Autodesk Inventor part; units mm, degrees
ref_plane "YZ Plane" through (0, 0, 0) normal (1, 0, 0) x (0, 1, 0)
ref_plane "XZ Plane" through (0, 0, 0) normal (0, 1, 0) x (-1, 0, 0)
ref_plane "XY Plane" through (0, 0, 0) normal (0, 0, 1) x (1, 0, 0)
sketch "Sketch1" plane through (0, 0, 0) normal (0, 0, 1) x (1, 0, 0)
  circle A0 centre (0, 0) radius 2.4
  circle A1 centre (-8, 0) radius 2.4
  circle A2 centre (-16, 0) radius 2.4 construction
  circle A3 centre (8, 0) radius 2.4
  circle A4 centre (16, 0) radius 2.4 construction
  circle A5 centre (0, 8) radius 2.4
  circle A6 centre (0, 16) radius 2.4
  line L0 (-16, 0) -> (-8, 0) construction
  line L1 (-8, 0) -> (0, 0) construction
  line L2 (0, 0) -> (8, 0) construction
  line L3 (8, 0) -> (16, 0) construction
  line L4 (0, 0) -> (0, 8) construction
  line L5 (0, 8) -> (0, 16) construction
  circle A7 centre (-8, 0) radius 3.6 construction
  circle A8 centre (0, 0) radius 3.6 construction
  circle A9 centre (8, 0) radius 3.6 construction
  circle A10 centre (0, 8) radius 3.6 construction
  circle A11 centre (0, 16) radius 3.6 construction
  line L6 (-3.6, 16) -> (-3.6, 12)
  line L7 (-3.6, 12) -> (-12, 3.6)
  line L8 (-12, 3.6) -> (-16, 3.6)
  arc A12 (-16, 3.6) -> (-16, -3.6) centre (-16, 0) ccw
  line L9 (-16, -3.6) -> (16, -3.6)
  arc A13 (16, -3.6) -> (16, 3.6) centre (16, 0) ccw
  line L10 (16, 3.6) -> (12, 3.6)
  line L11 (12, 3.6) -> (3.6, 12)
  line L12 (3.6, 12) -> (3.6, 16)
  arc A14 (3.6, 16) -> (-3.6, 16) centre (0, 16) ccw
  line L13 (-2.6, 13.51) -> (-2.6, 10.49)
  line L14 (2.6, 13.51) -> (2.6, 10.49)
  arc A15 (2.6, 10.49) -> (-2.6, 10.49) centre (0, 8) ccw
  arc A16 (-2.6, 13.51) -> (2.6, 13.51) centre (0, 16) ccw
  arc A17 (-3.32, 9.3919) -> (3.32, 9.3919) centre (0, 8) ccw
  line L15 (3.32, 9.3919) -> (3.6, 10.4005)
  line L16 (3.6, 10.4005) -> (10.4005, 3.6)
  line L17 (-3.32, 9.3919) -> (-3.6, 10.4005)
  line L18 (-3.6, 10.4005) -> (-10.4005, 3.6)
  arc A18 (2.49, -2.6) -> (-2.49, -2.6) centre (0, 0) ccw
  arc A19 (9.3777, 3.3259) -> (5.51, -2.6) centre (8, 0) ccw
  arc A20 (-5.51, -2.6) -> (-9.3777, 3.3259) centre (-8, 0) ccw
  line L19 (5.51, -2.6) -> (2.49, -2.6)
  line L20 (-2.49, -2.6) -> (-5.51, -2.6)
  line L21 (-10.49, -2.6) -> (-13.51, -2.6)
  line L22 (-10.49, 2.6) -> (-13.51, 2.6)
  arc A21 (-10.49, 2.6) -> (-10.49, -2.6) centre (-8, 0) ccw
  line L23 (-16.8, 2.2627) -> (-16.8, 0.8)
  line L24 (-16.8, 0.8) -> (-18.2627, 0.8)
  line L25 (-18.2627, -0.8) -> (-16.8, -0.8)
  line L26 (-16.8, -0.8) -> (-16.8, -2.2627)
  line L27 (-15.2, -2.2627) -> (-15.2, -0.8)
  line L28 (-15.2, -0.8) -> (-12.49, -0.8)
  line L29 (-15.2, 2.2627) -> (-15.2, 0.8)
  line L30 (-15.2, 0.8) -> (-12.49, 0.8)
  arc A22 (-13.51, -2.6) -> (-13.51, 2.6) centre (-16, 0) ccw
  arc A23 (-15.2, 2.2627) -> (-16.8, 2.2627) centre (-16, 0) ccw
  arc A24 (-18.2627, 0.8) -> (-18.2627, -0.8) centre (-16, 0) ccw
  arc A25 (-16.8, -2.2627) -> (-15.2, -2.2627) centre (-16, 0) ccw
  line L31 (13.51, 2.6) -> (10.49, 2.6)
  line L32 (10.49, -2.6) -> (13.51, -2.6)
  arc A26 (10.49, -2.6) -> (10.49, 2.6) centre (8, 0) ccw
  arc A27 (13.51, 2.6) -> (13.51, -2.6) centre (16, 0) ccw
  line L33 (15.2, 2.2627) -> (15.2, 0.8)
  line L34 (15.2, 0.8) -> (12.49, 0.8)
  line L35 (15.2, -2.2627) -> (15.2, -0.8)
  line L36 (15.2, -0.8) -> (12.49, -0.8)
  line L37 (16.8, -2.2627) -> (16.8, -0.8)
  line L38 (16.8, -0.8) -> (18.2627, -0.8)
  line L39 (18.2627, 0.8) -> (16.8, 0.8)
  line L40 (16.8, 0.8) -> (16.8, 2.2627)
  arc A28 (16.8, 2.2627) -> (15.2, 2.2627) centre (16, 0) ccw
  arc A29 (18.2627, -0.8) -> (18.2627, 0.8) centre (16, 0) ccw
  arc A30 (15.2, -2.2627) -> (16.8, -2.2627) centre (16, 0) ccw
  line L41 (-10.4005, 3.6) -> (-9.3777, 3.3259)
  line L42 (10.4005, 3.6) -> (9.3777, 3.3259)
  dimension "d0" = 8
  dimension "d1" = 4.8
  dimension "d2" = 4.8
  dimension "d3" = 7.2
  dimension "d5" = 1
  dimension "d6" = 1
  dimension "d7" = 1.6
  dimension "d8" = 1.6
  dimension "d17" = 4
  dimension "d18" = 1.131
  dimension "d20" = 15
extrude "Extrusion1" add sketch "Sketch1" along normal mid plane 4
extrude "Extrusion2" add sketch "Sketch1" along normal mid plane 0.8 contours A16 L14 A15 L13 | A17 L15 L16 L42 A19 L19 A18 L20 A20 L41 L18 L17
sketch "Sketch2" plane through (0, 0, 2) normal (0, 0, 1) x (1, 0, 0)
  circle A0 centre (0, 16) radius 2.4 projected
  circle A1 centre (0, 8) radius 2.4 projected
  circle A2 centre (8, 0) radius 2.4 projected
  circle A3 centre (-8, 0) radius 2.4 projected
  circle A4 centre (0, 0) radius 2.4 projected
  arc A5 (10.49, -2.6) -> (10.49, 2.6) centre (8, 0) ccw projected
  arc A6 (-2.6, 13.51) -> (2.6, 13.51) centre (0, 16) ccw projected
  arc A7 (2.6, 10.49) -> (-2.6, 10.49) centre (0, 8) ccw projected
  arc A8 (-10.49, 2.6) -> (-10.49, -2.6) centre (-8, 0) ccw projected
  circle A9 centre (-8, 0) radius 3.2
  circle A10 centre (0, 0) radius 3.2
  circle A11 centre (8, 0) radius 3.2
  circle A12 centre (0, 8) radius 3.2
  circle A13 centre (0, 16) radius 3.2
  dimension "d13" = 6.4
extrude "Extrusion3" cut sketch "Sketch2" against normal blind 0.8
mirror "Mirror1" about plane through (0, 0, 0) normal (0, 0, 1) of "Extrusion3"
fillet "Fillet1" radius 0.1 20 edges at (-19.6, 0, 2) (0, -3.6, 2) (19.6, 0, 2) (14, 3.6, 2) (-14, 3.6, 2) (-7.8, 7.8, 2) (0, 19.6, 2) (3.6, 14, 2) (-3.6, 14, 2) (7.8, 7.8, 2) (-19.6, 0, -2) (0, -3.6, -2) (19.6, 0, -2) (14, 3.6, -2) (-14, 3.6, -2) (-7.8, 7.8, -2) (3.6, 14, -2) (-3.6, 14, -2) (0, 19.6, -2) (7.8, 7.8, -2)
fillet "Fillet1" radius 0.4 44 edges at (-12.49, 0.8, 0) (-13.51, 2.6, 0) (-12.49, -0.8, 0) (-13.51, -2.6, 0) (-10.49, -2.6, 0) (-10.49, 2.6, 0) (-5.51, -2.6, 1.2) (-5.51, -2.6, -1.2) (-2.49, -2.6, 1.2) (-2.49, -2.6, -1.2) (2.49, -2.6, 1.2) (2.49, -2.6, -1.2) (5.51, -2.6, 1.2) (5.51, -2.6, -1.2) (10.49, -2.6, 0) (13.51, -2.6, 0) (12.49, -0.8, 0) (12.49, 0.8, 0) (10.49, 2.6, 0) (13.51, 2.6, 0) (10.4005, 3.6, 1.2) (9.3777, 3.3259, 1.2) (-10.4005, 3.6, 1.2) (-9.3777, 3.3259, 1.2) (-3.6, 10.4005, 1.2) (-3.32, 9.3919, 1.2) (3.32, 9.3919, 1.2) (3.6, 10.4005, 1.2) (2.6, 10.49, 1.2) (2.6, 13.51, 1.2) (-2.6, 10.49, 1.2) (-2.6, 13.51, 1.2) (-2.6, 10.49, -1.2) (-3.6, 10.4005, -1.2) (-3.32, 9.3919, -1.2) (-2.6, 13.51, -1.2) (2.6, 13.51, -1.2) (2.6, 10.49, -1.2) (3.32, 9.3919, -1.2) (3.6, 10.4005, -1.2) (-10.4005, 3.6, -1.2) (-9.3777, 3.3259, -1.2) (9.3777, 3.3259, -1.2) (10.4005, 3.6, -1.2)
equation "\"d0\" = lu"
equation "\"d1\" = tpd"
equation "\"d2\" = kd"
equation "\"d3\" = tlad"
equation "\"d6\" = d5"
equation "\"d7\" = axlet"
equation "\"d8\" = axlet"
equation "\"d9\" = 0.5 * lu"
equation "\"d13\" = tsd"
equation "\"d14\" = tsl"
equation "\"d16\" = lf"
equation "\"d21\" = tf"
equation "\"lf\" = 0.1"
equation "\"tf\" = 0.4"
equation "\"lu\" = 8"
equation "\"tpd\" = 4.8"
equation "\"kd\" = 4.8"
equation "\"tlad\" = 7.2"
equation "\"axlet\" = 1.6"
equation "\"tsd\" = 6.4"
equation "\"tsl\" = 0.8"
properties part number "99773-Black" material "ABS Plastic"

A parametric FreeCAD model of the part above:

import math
import FreeCAD as App
import Part
import Sketcher
from FreeCAD import Vector
Q = App.Units.Quantity


def edges_at(feature, points):
    """Names of the edges that pass closest to the given points."""
    edges = feature.Shape.Edges
    near = lambda p: min(range(len(edges)), key=lambda i: edges[i].distToShape(Part.Vertex(*p))[0])
    return sorted({f"Edge{near(p) + 1}" for p in points})

doc = App.newDocument("Part")
body = doc.addObject("PartDesign::Body", "Body")

# Sketch on XY plane
sketch1 = doc.addObject("Sketcher::SketchObject", "Sketch")
body.addObject(sketch1)
sketch1.AttachmentSupport = (doc.XY_Plane, [""])
sketch1.MapMode = "FlatFace"
sketch1.addGeometry([
    Part.ArcOfCircle(Part.Circle(Vector(0, 16, 0), Vector(0, 0, 1), 3.6), math.radians(0), math.radians(180)),  # 0
    Part.LineSegment(Vector(-3.6, 16, 0), Vector(-3.6, 12, 0)),  # 1
    Part.LineSegment(Vector(-3.6, 12, 0), Vector(-12, 3.6, 0)),  # 2
    Part.LineSegment(Vector(-12, 3.6, 0), Vector(-16, 3.6, 0)),  # 3
    Part.ArcOfCircle(Part.Circle(Vector(-16, 0, 0), Vector(0, 0, 1), 3.6), math.radians(90), math.radians(270)),  # 4
    Part.LineSegment(Vector(-16, -3.6, 0), Vector(16, -3.6, 0)),  # 5
    Part.ArcOfCircle(Part.Circle(Vector(16, 0, 0), Vector(0, 0, 1), 3.6), math.radians(-90), math.radians(90)),  # 6
    Part.LineSegment(Vector(16, 3.6, 0), Vector(12, 3.6, 0)),  # 7
    Part.LineSegment(Vector(12, 3.6, 0), Vector(3.6, 12, 0)),  # 8
    Part.LineSegment(Vector(3.6, 12, 0), Vector(3.6, 16, 0)),  # 9
    Part.ArcOfCircle(Part.Circle(Vector(-8, 0, 0), Vector(0, 0, 1), 3.600014), math.radians(133.761974), math.radians(226.238026)),  # 10
    Part.LineSegment(Vector(-10.49, -2.6, 0), Vector(-13.51, -2.6, 0)),  # 11
    Part.ArcOfCircle(Part.Circle(Vector(-16, 0, 0), Vector(0, 0, 1), 3.600014), math.radians(-46.238026), math.radians(-12.839538)),  # 12
    Part.LineSegment(Vector(-12.49, -0.8, 0), Vector(-15.2, -0.8, 0)),  # 13
    Part.LineSegment(Vector(-15.2, -0.8, 0), Vector(-15.2, -2.2627, 0)),  # 14
    Part.ArcOfCircle(Part.Circle(Vector(-16, 0, 0), Vector(0, 0, 1), 2.399961), math.radians(-109.471552), math.radians(-70.528448)),  # 15
    Part.LineSegment(Vector(-16.8, -2.2627, 0), Vector(-16.8, -0.8, 0)),  # 16
    Part.LineSegment(Vector(-16.8, -0.8, 0), Vector(-18.2627, -0.8, 0)),  # 17
    Part.ArcOfCircle(Part.Circle(Vector(-16, 0, 0), Vector(0, 0, 1), 2.399961), math.radians(160.528448), math.radians(199.471552)),  # 18
    Part.LineSegment(Vector(-18.2627, 0.8, 0), Vector(-16.8, 0.8, 0)),  # 19
    Part.LineSegment(Vector(-16.8, 0.8, 0), Vector(-16.8, 2.2627, 0)),  # 20
    Part.ArcOfCircle(Part.Circle(Vector(-16, 0, 0), Vector(0, 0, 1), 2.399961), math.radians(70.528448), math.radians(109.471552)),  # 21
    Part.LineSegment(Vector(-15.2, 2.2627, 0), Vector(-15.2, 0.8, 0)),  # 22
    Part.LineSegment(Vector(-15.2, 0.8, 0), Vector(-12.49, 0.8, 0)),  # 23
    Part.ArcOfCircle(Part.Circle(Vector(-16, 0, 0), Vector(0, 0, 1), 3.600014), math.radians(12.839538), math.radians(46.238026)),  # 24
    Part.LineSegment(Vector(-13.51, 2.6, 0), Vector(-10.49, 2.6, 0)),  # 25
    Part.Circle(Vector(-8, 0, 0), Vector(0, 0, 1), 2.4),  # 26
    Part.Circle(Vector(0, 0, 0), Vector(0, 0, 1), 2.4),  # 27
    Part.Circle(Vector(8, 0, 0), Vector(0, 0, 1), 2.4),  # 28
    Part.LineSegment(Vector(10.49, 2.6, 0), Vector(13.51, 2.6, 0)),  # 29
    Part.ArcOfCircle(Part.Circle(Vector(16, 0, 0), Vector(0, 0, 1), 3.600014), math.radians(133.761974), math.radians(167.160462)),  # 30
    Part.LineSegment(Vector(12.49, 0.8, 0), Vector(15.2, 0.8, 0)),  # 31
    Part.LineSegment(Vector(15.2, 0.8, 0), Vector(15.2, 2.2627, 0)),  # 32
    Part.ArcOfCircle(Part.Circle(Vector(16, 0, 0), Vector(0, 0, 1), 2.399961), math.radians(70.528448), math.radians(109.471552)),  # 33
    Part.LineSegment(Vector(16.8, 2.2627, 0), Vector(16.8, 0.8, 0)),  # 34
    Part.LineSegment(Vector(16.8, 0.8, 0), Vector(18.2627, 0.8, 0)),  # 35
    Part.ArcOfCircle(Part.Circle(Vector(16, 0, 0), Vector(0, 0, 1), 2.399961), math.radians(-19.471552), math.radians(19.471552)),  # 36
    Part.LineSegment(Vector(18.2627, -0.8, 0), Vector(16.8, -0.8, 0)),  # 37
    Part.LineSegment(Vector(16.8, -0.8, 0), Vector(16.8, -2.2627, 0)),  # 38
    Part.ArcOfCircle(Part.Circle(Vector(16, 0, 0), Vector(0, 0, 1), 2.399961), math.radians(-109.471552), math.radians(-70.528448)),  # 39
    Part.LineSegment(Vector(15.2, -2.2627, 0), Vector(15.2, -0.8, 0)),  # 40
    Part.LineSegment(Vector(15.2, -0.8, 0), Vector(12.49, -0.8, 0)),  # 41
    Part.ArcOfCircle(Part.Circle(Vector(16, 0, 0), Vector(0, 0, 1), 3.600014), math.radians(-167.160462), math.radians(-133.761974)),  # 42
    Part.LineSegment(Vector(13.51, -2.6, 0), Vector(10.49, -2.6, 0)),  # 43
    Part.ArcOfCircle(Part.Circle(Vector(8, 0, 0), Vector(0, 0, 1), 3.600014), math.radians(-46.238026), math.radians(46.238026)),  # 44
    Part.LineSegment(Vector(-3.6, 10.4005, 0), Vector(-3.32, 9.3919, 0)),  # 45
    Part.ArcOfCircle(Part.Circle(Vector(0, 8, 0), Vector(0, 0, 1), 3.59997), math.radians(157.254279), math.radians(382.745721)),  # 46
    Part.LineSegment(Vector(3.32, 9.3919, 0), Vector(3.6, 10.4005, 0)),  # 47
    Part.LineSegment(Vector(3.6, 10.4005, 0), Vector(10.4005, 3.6, 0)),  # 48
    Part.LineSegment(Vector(10.4005, 3.6, 0), Vector(9.3777, 3.3259, 0)),  # 49
    Part.ArcOfCircle(Part.Circle(Vector(8, 0, 0), Vector(0, 0, 1), 3.6), math.radians(67.499013), math.radians(226.238026)),  # 50
    Part.LineSegment(Vector(5.51, -2.6, 0), Vector(2.49, -2.6, 0)),  # 51
    Part.ArcOfCircle(Part.Circle(Vector(0, 0, 0), Vector(0, 0, 1), 3.600014), math.radians(-46.238026), math.radians(226.238026)),  # 52
    Part.LineSegment(Vector(-2.49, -2.6, 0), Vector(-5.51, -2.6, 0)),  # 53
    Part.ArcOfCircle(Part.Circle(Vector(-8, 0, 0), Vector(0, 0, 1), 3.6), math.radians(-46.238026), math.radians(112.500987)),  # 54
    Part.LineSegment(Vector(-9.3777, 3.3259, 0), Vector(-10.4005, 3.6, 0)),  # 55
    Part.LineSegment(Vector(-10.4005, 3.6, 0), Vector(-3.6, 10.4005, 0)),  # 56
    Part.Circle(Vector(0, 8, 0), Vector(0, 0, 1), 2.4),  # 57
    Part.LineSegment(Vector(-2.6, 10.49, 0), Vector(-2.6, 13.51, 0)),  # 58
    Part.ArcOfCircle(Part.Circle(Vector(0, 16, 0), Vector(0, 0, 1), 3.600014), math.radians(-136.238026), math.radians(-43.761974)),  # 59
    Part.LineSegment(Vector(2.6, 13.51, 0), Vector(2.6, 10.49, 0)),  # 60
    Part.ArcOfCircle(Part.Circle(Vector(0, 8, 0), Vector(0, 0, 1), 3.600014), math.radians(43.761974), math.radians(136.238026)),  # 61
    Part.Circle(Vector(0, 16, 0), Vector(0, 0, 1), 2.4),  # 62
], False)
sketch1.addConstraint([
    Sketcher.Constraint("Tangent", 0, 2, 1, 1),
    Sketcher.Constraint("Coincident", 1, 2, 2, 1),
    Sketcher.Constraint("Coincident", 2, 2, 3, 1),
    Sketcher.Constraint("Tangent", 3, 2, 4, 1),
    Sketcher.Constraint("Tangent", 4, 2, 5, 1),
    Sketcher.Constraint("Tangent", 5, 2, 6, 1),
    Sketcher.Constraint("Tangent", 6, 2, 7, 1),
    Sketcher.Constraint("Coincident", 7, 2, 8, 1),
    Sketcher.Constraint("Coincident", 8, 2, 9, 1),
    Sketcher.Constraint("Tangent", 9, 2, 0, 1),
    Sketcher.Constraint("Coincident", 10, 2, 11, 1),
    Sketcher.Constraint("Coincident", 11, 2, 12, 1),
    Sketcher.Constraint("Coincident", 12, 2, 13, 1),
    Sketcher.Constraint("Coincident", 13, 2, 14, 1),
    Sketcher.Constraint("Coincident", 14, 2, 15, 2),
    Sketcher.Constraint("Coincident", 15, 1, 16, 1),
    Sketcher.Constraint("Coincident", 16, 2, 17, 1),
    Sketcher.Constraint("Coincident", 17, 2, 18, 2),
    Sketcher.Constraint("Coincident", 18, 1, 19, 1),
    Sketcher.Constraint("Coincident", 19, 2, 20, 1),
    Sketcher.Constraint("Coincident", 20, 2, 21, 2),
    Sketcher.Constraint("Coincident", 21, 1, 22, 1),
    Sketcher.Constraint("Coincident", 22, 2, 23, 1),
    Sketcher.Constraint("Coincident", 23, 2, 24, 1),
    Sketcher.Constraint("Coincident", 24, 2, 25, 1),
    Sketcher.Constraint("Coincident", 25, 2, 10, 1),
    Sketcher.Constraint("Coincident", 29, 2, 30, 1),
    Sketcher.Constraint("Coincident", 30, 2, 31, 1),
    Sketcher.Constraint("Coincident", 31, 2, 32, 1),
    Sketcher.Constraint("Coincident", 32, 2, 33, 2),
    Sketcher.Constraint("Coincident", 33, 1, 34, 1),
    Sketcher.Constraint("Coincident", 34, 2, 35, 1),
    Sketcher.Constraint("Coincident", 35, 2, 36, 2),
    Sketcher.Constraint("Coincident", 36, 1, 37, 1),
    Sketcher.Constraint("Coincident", 37, 2, 38, 1),
    Sketcher.Constraint("Coincident", 38, 2, 39, 2),
    Sketcher.Constraint("Coincident", 39, 1, 40, 1),
    Sketcher.Constraint("Coincident", 40, 2, 41, 1),
    Sketcher.Constraint("Coincident", 41, 2, 42, 1),
    Sketcher.Constraint("Coincident", 42, 2, 43, 1),
    Sketcher.Constraint("Coincident", 43, 2, 44, 1),
    Sketcher.Constraint("Coincident", 44, 2, 29, 1),
    Sketcher.Constraint("Coincident", 45, 2, 46, 1),
    Sketcher.Constraint("Coincident", 46, 2, 47, 1),
    Sketcher.Constraint("Coincident", 47, 2, 48, 1),
    Sketcher.Constraint("Coincident", 48, 2, 49, 1),
    Sketcher.Constraint("Coincident", 49, 2, 50, 1),
    Sketcher.Constraint("Coincident", 50, 2, 51, 1),
    Sketcher.Constraint("Coincident", 51, 2, 52, 1),
    Sketcher.Constraint("Coincident", 52, 2, 53, 1),
    Sketcher.Constraint("Coincident", 53, 2, 54, 1),
    Sketcher.Constraint("Coincident", 54, 2, 55, 1),
    Sketcher.Constraint("Coincident", 55, 2, 56, 1),
    Sketcher.Constraint("Coincident", 56, 2, 45, 1),
    Sketcher.Constraint("Coincident", 58, 2, 59, 1),
    Sketcher.Constraint("Coincident", 59, 2, 60, 1),
    Sketcher.Constraint("Coincident", 60, 2, 61, 1),
    Sketcher.Constraint("Coincident", 61, 2, 58, 1),
    Sketcher.Constraint("Vertical", 1),
    Sketcher.Constraint("Horizontal", 3),
    Sketcher.Constraint("Horizontal", 5),
    Sketcher.Constraint("Horizontal", 7),
    Sketcher.Constraint("Vertical", 9),
    Sketcher.Constraint("Horizontal", 11),
    Sketcher.Constraint("Horizontal", 13),
    Sketcher.Constraint("Vertical", 14),
    Sketcher.Constraint("Vertical", 16),
    Sketcher.Constraint("Horizontal", 17),
    Sketcher.Constraint("Horizontal", 19),
    Sketcher.Constraint("Vertical", 20),
    Sketcher.Constraint("Vertical", 22),
    Sketcher.Constraint("Horizontal", 23),
    Sketcher.Constraint("Horizontal", 25),
    Sketcher.Constraint("Horizontal", 29),
    Sketcher.Constraint("Horizontal", 31),
    Sketcher.Constraint("Vertical", 32),
    Sketcher.Constraint("Vertical", 34),
    Sketcher.Constraint("Horizontal", 35),
    Sketcher.Constraint("Horizontal", 37),
    Sketcher.Constraint("Vertical", 38),
    Sketcher.Constraint("Vertical", 40),
    Sketcher.Constraint("Horizontal", 41),
    Sketcher.Constraint("Horizontal", 43),
    Sketcher.Constraint("Horizontal", 51),
    Sketcher.Constraint("Horizontal", 53),
    Sketcher.Constraint("Vertical", 58),
    Sketcher.Constraint("Vertical", 60),
    Sketcher.Constraint("Coincident", 27, 3, -1, 1),
    Sketcher.Constraint("Coincident", 52, 3, -1, 1),
    Sketcher.Constraint("Coincident", 12, 3, 4, 3),
    Sketcher.Constraint("Coincident", 15, 3, 4, 3),
    Sketcher.Constraint("Coincident", 18, 3, 4, 3),
    Sketcher.Constraint("Coincident", 21, 3, 4, 3),
    Sketcher.Constraint("Coincident", 24, 3, 4, 3),
    Sketcher.Constraint("Coincident", 26, 3, 10, 3),
    Sketcher.Constraint("Coincident", 30, 3, 6, 3),
    Sketcher.Constraint("Coincident", 33, 3, 6, 3),
    Sketcher.Constraint("Coincident", 36, 3, 6, 3),
    Sketcher.Constraint("Coincident", 39, 3, 6, 3),
    Sketcher.Constraint("Coincident", 42, 3, 6, 3),
    Sketcher.Constraint("Coincident", 44, 3, 28, 3),
    Sketcher.Constraint("Coincident", 50, 3, 28, 3),
    Sketcher.Constraint("Coincident", 54, 3, 10, 3),
    Sketcher.Constraint("Coincident", 57, 3, 46, 3),
    Sketcher.Constraint("Coincident", 59, 3, 0, 3),
    Sketcher.Constraint("Coincident", 61, 3, 46, 3),
    Sketcher.Constraint("Coincident", 62, 3, 0, 3),
    Sketcher.Constraint("Equal", 0, 4),
    Sketcher.Constraint("Equal", 4, 6),
    Sketcher.Constraint("Equal", 6, 10),
    Sketcher.Constraint("Equal", 10, 12),
    Sketcher.Constraint("Equal", 15, 18),
    Sketcher.Constraint("Equal", 18, 21),
    Sketcher.Constraint("Equal", 12, 24),
    Sketcher.Constraint("Equal", 21, 26),
    Sketcher.Constraint("Equal", 26, 27),
    Sketcher.Constraint("Equal", 27, 28),
    Sketcher.Constraint("Equal", 24, 30),
    Sketcher.Constraint("Equal", 28, 33),
    Sketcher.Constraint("Equal", 33, 36),
    Sketcher.Constraint("Equal", 36, 39),
    Sketcher.Constraint("Equal", 30, 42),
    Sketcher.Constraint("Equal", 42, 44),
    Sketcher.Constraint("Equal", 44, 46),
    Sketcher.Constraint("Equal", 46, 50),
    Sketcher.Constraint("Equal", 50, 52),
    Sketcher.Constraint("Equal", 52, 54),
    Sketcher.Constraint("Equal", 39, 57),
    Sketcher.Constraint("Equal", 54, 59),
    Sketcher.Constraint("Equal", 59, 61),
    Sketcher.Constraint("Equal", 57, 62),
    Sketcher.Constraint("Symmetric", 4, 3, 6, 3, -1, 1),
    Sketcher.Constraint("Symmetric", 10, 3, 28, 3, -1, 1),
    Sketcher.Constraint("Symmetric", 13, 2, 31, 2, -1, 1),
    Sketcher.Constraint("Symmetric", 16, 2, 34, 2, -1, 1),
    Sketcher.Constraint("Symmetric", 19, 2, 37, 2, -1, 1),
    Sketcher.Constraint("Symmetric", 22, 2, 40, 2, -1, 1),
    Sketcher.Constraint("Symmetric", 1, 2, 8, 2, -2),
    Sketcher.Constraint("Symmetric", 22, 2, 31, 2, -2),
    Sketcher.Constraint("Symmetric", 19, 2, 34, 2, -2),
    Sketcher.Constraint("Symmetric", 10, 2, 43, 2, -2),
    Sketcher.Constraint("Symmetric", 45, 2, 46, 2, -2),
    Sketcher.Constraint("Symmetric", 48, 2, 55, 2, -2),
    Sketcher.Constraint("Symmetric", 47, 2, 56, 2, -2),
    Sketcher.Constraint("Perpendicular", 2, 8),
    Sketcher.Constraint("Parallel", 8, 48),
    Sketcher.Constraint("Perpendicular", 48, 56),
    Sketcher.Constraint("Horizontal", 14, 2, 15, 1),
    Sketcher.Constraint("Horizontal", 13, 2, 16, 2),
    Sketcher.Constraint("Horizontal", 25, 2, 29, 2),
    Sketcher.Constraint("Horizontal", 7, 2, 48, 2),
    Sketcher.Constraint("Horizontal", 43, 2, 50, 2),
    Sketcher.Constraint("Horizontal", 51, 2, 52, 2),
    Sketcher.Constraint("Horizontal", 49, 2, 54, 2),
    Sketcher.Constraint("Horizontal", 58, 2, 59, 2),
    Sketcher.Constraint("Vertical", 11, 2, 24, 2),
    Sketcher.Constraint("Vertical", 9, 2, 47, 2),
    Sketcher.Constraint("Equal", 43, 51),
    Sketcher.Constraint("Equal", 7, 1),
    Sketcher.Constraint("Equal", 37, 14),
    Sketcher.Constraint("Equal", 53, 58),
    Sketcher.Constraint("Diameter", 26, Q("4.8 mm")),
    Sketcher.Constraint("Radius", 0, Q("3.6 mm")),
    Sketcher.Constraint("DistanceX", 3, 2, 3, 1, Q("4 mm")),
    Sketcher.Constraint("DistanceX", 10, 3, -1, 1, Q("8 mm")),
    Sketcher.Constraint("DistanceY", -1, 1, 46, 3, Q("8 mm")),
    Sketcher.Constraint("DistanceX", 11, 2, 11, 1, Q("3.02 mm")),
    Sketcher.Constraint("DistanceX", 13, 2, 13, 1, Q("2.71 mm")),
    Sketcher.Constraint("DistanceX", 45, 2, -1, 1, Q("3.32 mm")),
    Sketcher.Constraint("Distance", 49, Q("1.059 mm")),
    Sketcher.Constraint("DistanceY", -1, 1, 49, 2, Q("3.326 mm")),
])
pad1 = doc.addObject("PartDesign::Pad", "Pad")
body.addObject(pad1)
pad1.Profile = sketch1
pad1.Length = 4
pad1.Midplane = True

# Sketch on XY plane
sketch2 = doc.addObject("Sketcher::SketchObject", "Sketch001")
body.addObject(sketch2)
sketch2.AttachmentSupport = (doc.XY_Plane, [""])
sketch2.MapMode = "FlatFace"
sketch2.addGeometry([
    Part.ArcOfCircle(Part.Circle(Vector(0, 16, 0), Vector(0, 0, 1), 3.600014), math.radians(-136.238026), math.radians(-43.761974)),  # 0
    Part.LineSegment(Vector(-2.6, 13.51, 0), Vector(-2.6, 10.49, 0)),  # 1
    Part.ArcOfCircle(Part.Circle(Vector(0, 8, 0), Vector(0, 0, 1), 3.600014), math.radians(43.761974), math.radians(136.238026)),  # 2
    Part.LineSegment(Vector(2.6, 10.49, 0), Vector(2.6, 13.51, 0)),  # 3
    Part.ArcOfCircle(Part.Circle(Vector(0, 8, 0), Vector(0, 0, 1), 3.59997), math.radians(157.254279), math.radians(382.745721)),  # 4
    Part.LineSegment(Vector(-3.32, 9.3919, 0), Vector(-3.6, 10.4005, 0)),  # 5
    Part.LineSegment(Vector(-3.6, 10.4005, 0), Vector(-10.4005, 3.6, 0)),  # 6
    Part.LineSegment(Vector(-10.4005, 3.6, 0), Vector(-9.3777, 3.3259, 0)),  # 7
    Part.ArcOfCircle(Part.Circle(Vector(-8, 0, 0), Vector(0, 0, 1), 3.6), math.radians(-46.238026), math.radians(112.500987)),  # 8
    Part.LineSegment(Vector(-5.51, -2.6, 0), Vector(-2.49, -2.6, 0)),  # 9
    Part.ArcOfCircle(Part.Circle(Vector(0, 0, 0), Vector(0, 0, 1), 3.600014), math.radians(-46.238026), math.radians(226.238026)),  # 10
    Part.LineSegment(Vector(2.49, -2.6, 0), Vector(5.51, -2.6, 0)),  # 11
    Part.ArcOfCircle(Part.Circle(Vector(8, 0, 0), Vector(0, 0, 1), 3.6), math.radians(67.499013), math.radians(226.238026)),  # 12
    Part.LineSegment(Vector(9.3777, 3.3259, 0), Vector(10.4005, 3.6, 0)),  # 13
    Part.LineSegment(Vector(10.4005, 3.6, 0), Vector(3.6, 10.4005, 0)),  # 14
    Part.LineSegment(Vector(3.6, 10.4005, 0), Vector(3.32, 9.3919, 0)),  # 15
], False)
sketch2.addConstraint([
    Sketcher.Constraint("Coincident", 0, 1, 1, 1),
    Sketcher.Constraint("Coincident", 1, 2, 2, 2),
    Sketcher.Constraint("Coincident", 2, 1, 3, 1),
    Sketcher.Constraint("Coincident", 3, 2, 0, 2),
    Sketcher.Constraint("Coincident", 4, 1, 5, 1),
    Sketcher.Constraint("Coincident", 5, 2, 6, 1),
    Sketcher.Constraint("Coincident", 6, 2, 7, 1),
    Sketcher.Constraint("Coincident", 7, 2, 8, 2),
    Sketcher.Constraint("Coincident", 8, 1, 9, 1),
    Sketcher.Constraint("Coincident", 9, 2, 10, 2),
    Sketcher.Constraint("Coincident", 10, 1, 11, 1),
    Sketcher.Constraint("Coincident", 11, 2, 12, 2),
    Sketcher.Constraint("Coincident", 12, 1, 13, 1),
    Sketcher.Constraint("Coincident", 13, 2, 14, 1),
    Sketcher.Constraint("Coincident", 14, 2, 15, 1),
    Sketcher.Constraint("Coincident", 15, 2, 4, 2),
    Sketcher.Constraint("Vertical", 1),
    Sketcher.Constraint("Vertical", 3),
    Sketcher.Constraint("Horizontal", 9),
    Sketcher.Constraint("Horizontal", 11),
    Sketcher.Constraint("Coincident", 10, 3, -1, 1),
    Sketcher.Constraint("Coincident", 4, 3, 2, 3),
    Sketcher.Constraint("Equal", 0, 2),
    Sketcher.Constraint("Equal", 2, 4),
    Sketcher.Constraint("Equal", 4, 8),
    Sketcher.Constraint("Equal", 8, 10),
    Sketcher.Constraint("Equal", 10, 12),
    Sketcher.Constraint("Symmetric", 8, 3, 12, 3, -1, 1),
    Sketcher.Constraint("Symmetric", 1, 2, 2, 1, -2),
    Sketcher.Constraint("Symmetric", 8, 1, 11, 2, -2),
    Sketcher.Constraint("Symmetric", 6, 2, 13, 2, -2),
    Sketcher.Constraint("Symmetric", 5, 2, 14, 2, -2),
    Sketcher.Constraint("PointOnObject", 0, 3, -2),
    Sketcher.Constraint("Perpendicular", 6, 14),
    Sketcher.Constraint("Horizontal", 7, 2, 12, 1),
    Sketcher.Constraint("Horizontal", 4, 1, 15, 2),
    Sketcher.Constraint("Equal", 11, 1),
    Sketcher.Constraint("Radius", 0, Q("3.6 mm")),
    Sketcher.Constraint("DistanceY", -1, 1, 2, 3, Q("8 mm")),
    Sketcher.Constraint("DistanceX", 8, 3, -1, 1, Q("8 mm")),
    Sketcher.Constraint("DistanceY", 2, 3, 0, 3, Q("8 mm")),
    Sketcher.Constraint("DistanceX", 5, 2, 1, 2, Q("1 mm")),
    Sketcher.Constraint("DistanceX", 9, 1, 9, 2, Q("3.02 mm")),
    Sketcher.Constraint("DistanceY", -1, 1, 6, 2, Q("3.6 mm")),
    Sketcher.Constraint("DistanceX", 4, 1, -1, 1, Q("3.32 mm")),
    Sketcher.Constraint("Distance", 7, Q("1.059 mm")),
    Sketcher.Constraint("DistanceY", -1, 1, 7, 2, Q("3.326 mm")),
])
pad2 = doc.addObject("PartDesign::Pad", "Pad001")
body.addObject(pad2)
pad2.Profile = sketch2
pad2.Length = 0.8
pad2.Midplane = True

# Sketch on XY plane
sketch3 = doc.addObject("Sketcher::SketchObject", "Sketch002")
body.addObject(sketch3)
sketch3.AttachmentSupport = (doc.XY_Plane, [""])
sketch3.MapMode = "FlatFace"
sketch3.AttachmentOffset = App.Placement(Vector(0, 0, 2), App.Rotation())
sketch3.addGeometry([
    Part.Circle(Vector(-8, 0, 0), Vector(0, 0, 1), 3.2),  # 0
    Part.Circle(Vector(-8, 0, 0), Vector(0, 0, 1), 2.4),  # 1
    Part.Circle(Vector(0, 0, 0), Vector(0, 0, 1), 3.2),  # 2
    Part.Circle(Vector(0, 0, 0), Vector(0, 0, 1), 2.4),  # 3
    Part.Circle(Vector(8, 0, 0), Vector(0, 0, 1), 3.2),  # 4
    Part.Circle(Vector(8, 0, 0), Vector(0, 0, 1), 2.4),  # 5
    Part.Circle(Vector(0, 8, 0), Vector(0, 0, 1), 3.2),  # 6
    Part.Circle(Vector(0, 8, 0), Vector(0, 0, 1), 2.4),  # 7
    Part.Circle(Vector(0, 16, 0), Vector(0, 0, 1), 3.2),  # 8
    Part.Circle(Vector(0, 16, 0), Vector(0, 0, 1), 2.4),  # 9
], False)
sketch3.addConstraint([
    Sketcher.Constraint("Coincident", 2, 3, -1, 1),
    Sketcher.Constraint("Coincident", 3, 3, -1, 1),
    Sketcher.Constraint("Coincident", 1, 3, 0, 3),
    Sketcher.Constraint("Coincident", 5, 3, 4, 3),
    Sketcher.Constraint("Coincident", 7, 3, 6, 3),
    Sketcher.Constraint("Coincident", 9, 3, 8, 3),
    Sketcher.Constraint("Equal", 0, 2),
    Sketcher.Constraint("Equal", 1, 3),
    Sketcher.Constraint("Equal", 2, 4),
    Sketcher.Constraint("Equal", 3, 5),
    Sketcher.Constraint("Equal", 4, 6),
    Sketcher.Constraint("Equal", 5, 7),
    Sketcher.Constraint("Equal", 6, 8),
    Sketcher.Constraint("Equal", 7, 9),
    Sketcher.Constraint("Symmetric", 0, 3, 4, 3, -1, 1),
    Sketcher.Constraint("PointOnObject", 0, 3, -1),
    Sketcher.Constraint("PointOnObject", 6, 3, -2),
    Sketcher.Constraint("PointOnObject", 8, 3, -2),
    Sketcher.Constraint("Diameter", 0, Q("6.4 mm")),
    Sketcher.Constraint("Diameter", 1, Q("4.8 mm")),
    Sketcher.Constraint("DistanceX", 0, 3, -1, 1, Q("8 mm")),
    Sketcher.Constraint("DistanceY", -1, 1, 6, 3, Q("8 mm")),
    Sketcher.Constraint("DistanceY", -1, 1, 8, 3, Q("16 mm")),
])
pocket1 = doc.addObject("PartDesign::Pocket", "Pocket")
body.addObject(pocket1)
pocket1.Profile = sketch3
pocket1.Length = 0.8
doc.recompute()

mirrored = doc.addObject("PartDesign::Mirrored", "Mirrored")
body.addObject(mirrored)
mirrored.Originals = [pocket1]
mirrored.MirrorPlane = (doc.XY_Plane, [""])
body.Tip = mirrored
doc.recompute()

fillet = doc.addObject("PartDesign::Fillet", "Fillet")
body.addObject(fillet)
fillet.Base = (mirrored, edges_at(mirrored, [
    (-19.6, 0, 2),
    (0, -3.6, 2),
    (19.6, 0, 2),
    (14, 3.6, 2),
    (-14, 3.6, 2),
    (-7.8, 7.8, 2),
    (0, 19.6, 2),
    (3.6, 14, 2),
    (-3.6, 14, 2),
    (7.8, 7.8, 2),
    (-19.6, 0, -2),
    (0, -3.6, -2),
    (19.6, 0, -2),
    (14, 3.6, -2),
    (-14, 3.6, -2),
    (-7.8, 7.8, -2),
    (3.6, 14, -2),
    (-3.6, 14, -2),
    (0, 19.6, -2),
    (7.8, 7.8, -2),
]))
fillet.Radius = 0.1
doc.recompute()

fillet2 = doc.addObject("PartDesign::Fillet", "Fillet001")
body.addObject(fillet2)
fillet2.Base = (fillet, edges_at(fillet, [
    (-12.49, 0.8, 0),
    (-13.51, 2.6, 0),
    (-12.49, -0.8, 0),
    (-13.51, -2.6, 0),
    (-10.49, -2.6, 0),
    (-10.49, 2.6, 0),
    (-5.51, -2.6, 1.2),
    (-5.51, -2.6, -1.2),
    (-2.49, -2.6, 1.2),
    (-2.49, -2.6, -1.2),
    (2.49, -2.6, 1.2),
    (2.49, -2.6, -1.2),
    (5.51, -2.6, 1.2),
    (5.51, -2.6, -1.2),
    (10.49, -2.6, 0),
    (13.51, -2.6, 0),
    (12.49, -0.8, 0),
    (12.49, 0.8, 0),
    (10.49, 2.6, 0),
    (13.51, 2.6, 0),
    (10.4, 3.6, 1.2),
    (9.378, 3.326, 1.2),
    (-10.4, 3.6, 1.2),
    (-9.378, 3.326, 1.2),
    (-3.6, 10.4, 1.2),
    (-3.32, 9.392, 1.2),
    (3.32, 9.392, 1.2),
    (3.6, 10.4, 1.2),
    (2.6, 10.49, 1.2),
    (2.6, 13.51, 1.2),
    (-2.6, 10.49, 1.2),
    (-2.6, 13.51, 1.2),
    (-2.6, 10.49, -1.2),
    (-3.6, 10.4, -1.2),
    (-3.32, 9.392, -1.2),
    (-2.6, 13.51, -1.2),
    (2.6, 13.51, -1.2),
    (2.6, 10.49, -1.2),
    (3.32, 9.392, -1.2),
    (3.6, 10.4, -1.2),
    (-10.4, 3.6, -1.2),
    (-9.378, 3.326, -1.2),
    (9.378, 3.326, -1.2),
    (10.4, 3.6, -1.2),
]))
fillet2.Radius = 0.4

doc.recompute()
